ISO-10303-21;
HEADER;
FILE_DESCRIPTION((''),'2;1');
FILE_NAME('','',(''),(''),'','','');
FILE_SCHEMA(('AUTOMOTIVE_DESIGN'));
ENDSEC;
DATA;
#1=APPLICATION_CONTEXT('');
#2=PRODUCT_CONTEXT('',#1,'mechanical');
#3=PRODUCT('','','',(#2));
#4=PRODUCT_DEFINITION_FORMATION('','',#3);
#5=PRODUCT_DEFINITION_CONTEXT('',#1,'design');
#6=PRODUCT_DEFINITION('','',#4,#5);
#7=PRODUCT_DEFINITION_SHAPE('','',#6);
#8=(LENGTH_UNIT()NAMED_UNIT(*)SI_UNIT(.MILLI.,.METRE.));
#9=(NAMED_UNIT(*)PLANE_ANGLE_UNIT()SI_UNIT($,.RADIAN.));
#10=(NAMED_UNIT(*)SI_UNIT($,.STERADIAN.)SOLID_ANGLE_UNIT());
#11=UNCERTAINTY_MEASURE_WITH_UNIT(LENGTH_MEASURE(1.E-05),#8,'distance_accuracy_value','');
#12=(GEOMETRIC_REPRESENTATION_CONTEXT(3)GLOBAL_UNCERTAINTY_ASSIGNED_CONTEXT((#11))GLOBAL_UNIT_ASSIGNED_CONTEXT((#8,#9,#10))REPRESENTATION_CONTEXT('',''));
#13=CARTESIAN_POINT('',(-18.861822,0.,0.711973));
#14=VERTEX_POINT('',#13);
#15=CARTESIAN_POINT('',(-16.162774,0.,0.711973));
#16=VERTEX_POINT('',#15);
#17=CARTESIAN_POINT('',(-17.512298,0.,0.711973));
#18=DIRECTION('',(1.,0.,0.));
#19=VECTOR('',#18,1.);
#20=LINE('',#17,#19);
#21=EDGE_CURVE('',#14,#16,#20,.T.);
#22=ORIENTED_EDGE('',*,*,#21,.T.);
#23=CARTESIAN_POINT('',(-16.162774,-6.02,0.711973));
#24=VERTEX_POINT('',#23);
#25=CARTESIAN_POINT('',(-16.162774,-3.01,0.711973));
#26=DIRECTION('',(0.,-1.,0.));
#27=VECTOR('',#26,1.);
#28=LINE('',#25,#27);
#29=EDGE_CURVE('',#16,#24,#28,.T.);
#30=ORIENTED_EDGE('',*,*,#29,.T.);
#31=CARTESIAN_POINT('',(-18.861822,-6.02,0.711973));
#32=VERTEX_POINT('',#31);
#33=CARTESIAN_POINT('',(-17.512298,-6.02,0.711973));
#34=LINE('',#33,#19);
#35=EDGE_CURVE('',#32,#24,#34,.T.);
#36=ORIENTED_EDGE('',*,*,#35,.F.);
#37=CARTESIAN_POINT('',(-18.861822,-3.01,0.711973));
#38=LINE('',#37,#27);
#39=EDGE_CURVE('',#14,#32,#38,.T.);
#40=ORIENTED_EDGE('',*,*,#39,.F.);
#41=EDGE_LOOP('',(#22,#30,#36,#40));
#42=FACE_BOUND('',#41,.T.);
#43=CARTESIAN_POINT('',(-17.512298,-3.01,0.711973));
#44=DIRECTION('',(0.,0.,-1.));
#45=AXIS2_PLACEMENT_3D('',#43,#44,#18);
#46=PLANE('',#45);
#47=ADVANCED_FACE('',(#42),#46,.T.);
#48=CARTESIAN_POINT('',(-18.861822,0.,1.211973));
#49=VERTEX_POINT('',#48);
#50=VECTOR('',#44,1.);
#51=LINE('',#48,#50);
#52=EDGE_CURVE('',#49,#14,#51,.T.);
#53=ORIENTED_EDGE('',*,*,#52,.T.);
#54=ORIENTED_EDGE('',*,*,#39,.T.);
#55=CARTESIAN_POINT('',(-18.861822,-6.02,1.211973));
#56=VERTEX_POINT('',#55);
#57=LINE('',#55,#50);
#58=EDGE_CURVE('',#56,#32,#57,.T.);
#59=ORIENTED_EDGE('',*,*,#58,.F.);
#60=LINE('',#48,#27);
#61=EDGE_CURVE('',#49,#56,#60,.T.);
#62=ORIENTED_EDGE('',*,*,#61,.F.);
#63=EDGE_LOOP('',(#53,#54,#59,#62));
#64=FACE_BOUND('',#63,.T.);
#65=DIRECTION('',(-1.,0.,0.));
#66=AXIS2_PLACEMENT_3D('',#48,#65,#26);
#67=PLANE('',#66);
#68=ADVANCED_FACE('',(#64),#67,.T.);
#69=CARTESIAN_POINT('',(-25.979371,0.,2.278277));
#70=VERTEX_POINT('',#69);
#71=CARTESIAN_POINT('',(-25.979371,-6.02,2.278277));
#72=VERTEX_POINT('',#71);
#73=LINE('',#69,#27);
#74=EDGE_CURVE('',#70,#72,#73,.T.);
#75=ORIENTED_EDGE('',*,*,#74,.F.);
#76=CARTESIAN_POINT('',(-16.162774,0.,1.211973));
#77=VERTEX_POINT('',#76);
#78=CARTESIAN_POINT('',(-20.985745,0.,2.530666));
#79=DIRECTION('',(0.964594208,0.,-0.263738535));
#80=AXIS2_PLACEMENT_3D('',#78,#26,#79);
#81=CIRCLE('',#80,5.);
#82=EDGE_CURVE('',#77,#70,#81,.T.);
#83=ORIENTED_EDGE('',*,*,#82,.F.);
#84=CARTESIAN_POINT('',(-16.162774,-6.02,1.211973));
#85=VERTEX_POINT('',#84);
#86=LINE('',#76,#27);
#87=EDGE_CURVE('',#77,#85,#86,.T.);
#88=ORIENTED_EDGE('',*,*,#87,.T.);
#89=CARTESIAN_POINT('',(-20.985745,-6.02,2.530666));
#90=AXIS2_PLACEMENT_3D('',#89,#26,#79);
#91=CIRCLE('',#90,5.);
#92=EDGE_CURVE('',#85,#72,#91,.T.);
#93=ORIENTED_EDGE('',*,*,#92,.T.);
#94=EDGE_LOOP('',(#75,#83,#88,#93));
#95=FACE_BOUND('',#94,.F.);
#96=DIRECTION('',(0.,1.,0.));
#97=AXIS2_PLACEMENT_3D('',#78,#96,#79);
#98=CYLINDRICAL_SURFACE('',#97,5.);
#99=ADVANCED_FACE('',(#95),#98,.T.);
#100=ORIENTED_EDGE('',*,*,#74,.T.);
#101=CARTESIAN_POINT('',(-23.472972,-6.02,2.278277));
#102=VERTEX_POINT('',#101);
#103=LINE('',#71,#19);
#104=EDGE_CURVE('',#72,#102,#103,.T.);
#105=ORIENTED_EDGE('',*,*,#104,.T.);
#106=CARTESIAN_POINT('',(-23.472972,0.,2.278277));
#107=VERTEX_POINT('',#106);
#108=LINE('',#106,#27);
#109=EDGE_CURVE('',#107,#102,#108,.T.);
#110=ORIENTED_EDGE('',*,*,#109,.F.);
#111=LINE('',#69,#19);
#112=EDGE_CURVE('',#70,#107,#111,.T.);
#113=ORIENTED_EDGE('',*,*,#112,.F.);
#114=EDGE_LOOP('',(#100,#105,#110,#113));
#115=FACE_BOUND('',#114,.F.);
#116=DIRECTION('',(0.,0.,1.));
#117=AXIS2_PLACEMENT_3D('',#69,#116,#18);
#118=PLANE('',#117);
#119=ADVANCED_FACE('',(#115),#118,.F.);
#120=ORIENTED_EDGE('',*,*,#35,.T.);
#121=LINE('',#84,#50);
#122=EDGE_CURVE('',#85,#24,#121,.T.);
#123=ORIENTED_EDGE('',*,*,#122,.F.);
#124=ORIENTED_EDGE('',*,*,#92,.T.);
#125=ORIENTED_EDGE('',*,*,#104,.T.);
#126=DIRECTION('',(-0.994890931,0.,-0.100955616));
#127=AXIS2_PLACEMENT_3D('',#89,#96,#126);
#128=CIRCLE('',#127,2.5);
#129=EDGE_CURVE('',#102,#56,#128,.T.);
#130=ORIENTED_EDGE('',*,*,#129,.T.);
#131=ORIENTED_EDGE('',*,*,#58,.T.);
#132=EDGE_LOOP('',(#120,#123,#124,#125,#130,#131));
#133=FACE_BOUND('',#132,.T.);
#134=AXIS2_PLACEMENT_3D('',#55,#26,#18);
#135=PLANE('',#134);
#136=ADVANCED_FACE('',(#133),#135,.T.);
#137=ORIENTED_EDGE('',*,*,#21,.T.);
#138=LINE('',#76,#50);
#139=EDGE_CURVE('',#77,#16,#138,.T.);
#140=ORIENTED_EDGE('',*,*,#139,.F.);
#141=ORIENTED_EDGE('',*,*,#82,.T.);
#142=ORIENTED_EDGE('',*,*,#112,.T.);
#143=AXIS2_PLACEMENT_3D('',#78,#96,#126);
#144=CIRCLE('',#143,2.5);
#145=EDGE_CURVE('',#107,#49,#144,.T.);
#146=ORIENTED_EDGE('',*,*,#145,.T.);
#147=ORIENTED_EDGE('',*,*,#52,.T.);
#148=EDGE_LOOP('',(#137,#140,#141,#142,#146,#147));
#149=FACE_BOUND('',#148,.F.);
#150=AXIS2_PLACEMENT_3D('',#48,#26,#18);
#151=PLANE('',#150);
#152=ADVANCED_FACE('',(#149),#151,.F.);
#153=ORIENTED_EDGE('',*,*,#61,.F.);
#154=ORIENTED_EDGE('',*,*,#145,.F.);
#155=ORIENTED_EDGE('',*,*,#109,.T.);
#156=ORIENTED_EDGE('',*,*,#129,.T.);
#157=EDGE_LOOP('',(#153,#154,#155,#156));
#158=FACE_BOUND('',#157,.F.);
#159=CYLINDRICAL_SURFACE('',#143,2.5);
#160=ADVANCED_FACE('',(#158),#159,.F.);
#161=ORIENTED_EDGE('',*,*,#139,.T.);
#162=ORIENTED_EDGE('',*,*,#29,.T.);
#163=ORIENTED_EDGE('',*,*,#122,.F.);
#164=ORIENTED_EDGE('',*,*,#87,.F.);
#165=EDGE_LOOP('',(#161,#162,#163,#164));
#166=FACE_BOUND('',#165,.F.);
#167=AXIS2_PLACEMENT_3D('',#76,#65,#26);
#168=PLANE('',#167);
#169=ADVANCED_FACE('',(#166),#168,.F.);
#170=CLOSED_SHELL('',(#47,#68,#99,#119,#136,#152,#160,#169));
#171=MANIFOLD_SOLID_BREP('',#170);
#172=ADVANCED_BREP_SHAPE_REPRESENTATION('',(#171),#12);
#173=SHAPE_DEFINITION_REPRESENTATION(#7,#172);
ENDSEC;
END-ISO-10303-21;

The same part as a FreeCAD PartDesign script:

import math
import FreeCAD as App
import Part
import Sketcher
from FreeCAD import Vector
Q = App.Units.Quantity


def add_polygon(sketch, points):
    """Adds a closed chain of lines whose ends are joined by coincident constraints."""
    first, n = sketch.GeometryCount, len(points)
    for a, b in zip(points, points[1:] + points[:1]):
        sketch.addGeometry(Part.LineSegment(App.Vector(*a, 0), App.Vector(*b, 0)), False)
    for i in range(n):
        sketch.addConstraint(Sketcher.Constraint("Coincident", first + i, 2, first + (i + 1) % n, 1))

doc = App.newDocument("Part")
body = doc.addObject("PartDesign::Body", "Body")

# Sketch on XZ plane
sketch1 = body.newObject("Sketcher::SketchObject", "Sketch")
sketch1.AttachmentSupport = (doc.getObject("XZ_Plane"), [""])
sketch1.MapMode = "FlatFace"
sketch1.addGeometry(Part.LineSegment(Vector(-18.9, 1.2, 0), Vector(-16.2, 1.2, 0)), False)
sketch1.addGeometry(Part.ArcOfCircle(Part.Circle(Vector(-21, 2.5, 0), Vector(0, 0, 1), 5), math.radians(-15), math.radians(183)), False)
sketch1.addGeometry(Part.LineSegment(Vector(-26, 2.3, 0), Vector(-23.5, 2.3, 0)), False)
sketch1.addGeometry(Part.ArcOfCircle(Part.Circle(Vector(-21, 2.5, 0), Vector(0, 0, 1), 2.5), math.radians(-32), math.radians(186)), False)
sketch1.addConstraint(Sketcher.Constraint("Coincident", 0, 2, 1, 1))
sketch1.addConstraint(Sketcher.Constraint("Coincident", 1, 2, 2, 1))
sketch1.addConstraint(Sketcher.Constraint("Coincident", 2, 2, 3, 2))
sketch1.addConstraint(Sketcher.Constraint("Coincident", 3, 1, 0, 1))
sketch1.addConstraint(Sketcher.Constraint("Horizontal", 0))
sketch1.addConstraint(Sketcher.Constraint("Horizontal", 2))
sketch1.addConstraint(Sketcher.Constraint("Coincident", 3, 3, 1, 3))
sketch1.addConstraint(Sketcher.Constraint("Radius", 1, Q("5 mm")))
sketch1.addConstraint(Sketcher.Constraint("Radius", 3, Q("2.5 mm")))
sketch1.addConstraint(Sketcher.Constraint("DistanceX", 2, 1, 2, 2, Q("2.506399 mm")))
sketch1.addConstraint(Sketcher.Constraint("DistanceX", 0, 1, 0, 2, Q("2.699048 mm")))
sketch1.addConstraint(Sketcher.Constraint("DistanceX", 1, 2, -1, 1, Q("25.979371 mm")))
sketch1.addConstraint(Sketcher.Constraint("DistanceY", -1, 1, 1, 3, Q("2.530666 mm")))
pad1 = body.newObject("PartDesign::Pad", "Pad")
pad1.Profile = sketch1
pad1.Length = 6.02

# Sketch on XY plane
sketch2 = body.newObject("Sketcher::SketchObject", "Sketch001")
sketch2.AttachmentSupport = (doc.getObject("XY_Plane"), [""])
sketch2.MapMode = "FlatFace"
sketch2.AttachmentOffset = App.Placement(Vector(0, 0, 1.211973), App.Rotation())
add_polygon(sketch2, [(-18.9, -6), (-18.9, 0), (-16.2, 0), (-16.2, -6)])  # lines 0-3
sketch2.addConstraint(Sketcher.Constraint("Vertical", 0))
sketch2.addConstraint(Sketcher.Constraint("Horizontal", 1))
sketch2.addConstraint(Sketcher.Constraint("Vertical", 2))
sketch2.addConstraint(Sketcher.Constraint("Horizontal", 3))
sketch2.addConstraint(Sketcher.Constraint("PointOnObject", 0, 2, -1))
sketch2.addConstraint(Sketcher.Constraint("DistanceY", 0, 1, 0, 2, Q("6.02 mm")))
sketch2.addConstraint(Sketcher.Constraint("DistanceX", 1, 1, 1, 2, Q("2.699048 mm")))
sketch2.addConstraint(Sketcher.Constraint("DistanceX", 0, 2, -1, 1, Q("18.861822 mm")))
pad2 = body.newObject("PartDesign::Pad", "Pad001")
pad2.Profile = sketch2
pad2.Length = 0.5
pad2.Reversed = True

doc.recompute()
